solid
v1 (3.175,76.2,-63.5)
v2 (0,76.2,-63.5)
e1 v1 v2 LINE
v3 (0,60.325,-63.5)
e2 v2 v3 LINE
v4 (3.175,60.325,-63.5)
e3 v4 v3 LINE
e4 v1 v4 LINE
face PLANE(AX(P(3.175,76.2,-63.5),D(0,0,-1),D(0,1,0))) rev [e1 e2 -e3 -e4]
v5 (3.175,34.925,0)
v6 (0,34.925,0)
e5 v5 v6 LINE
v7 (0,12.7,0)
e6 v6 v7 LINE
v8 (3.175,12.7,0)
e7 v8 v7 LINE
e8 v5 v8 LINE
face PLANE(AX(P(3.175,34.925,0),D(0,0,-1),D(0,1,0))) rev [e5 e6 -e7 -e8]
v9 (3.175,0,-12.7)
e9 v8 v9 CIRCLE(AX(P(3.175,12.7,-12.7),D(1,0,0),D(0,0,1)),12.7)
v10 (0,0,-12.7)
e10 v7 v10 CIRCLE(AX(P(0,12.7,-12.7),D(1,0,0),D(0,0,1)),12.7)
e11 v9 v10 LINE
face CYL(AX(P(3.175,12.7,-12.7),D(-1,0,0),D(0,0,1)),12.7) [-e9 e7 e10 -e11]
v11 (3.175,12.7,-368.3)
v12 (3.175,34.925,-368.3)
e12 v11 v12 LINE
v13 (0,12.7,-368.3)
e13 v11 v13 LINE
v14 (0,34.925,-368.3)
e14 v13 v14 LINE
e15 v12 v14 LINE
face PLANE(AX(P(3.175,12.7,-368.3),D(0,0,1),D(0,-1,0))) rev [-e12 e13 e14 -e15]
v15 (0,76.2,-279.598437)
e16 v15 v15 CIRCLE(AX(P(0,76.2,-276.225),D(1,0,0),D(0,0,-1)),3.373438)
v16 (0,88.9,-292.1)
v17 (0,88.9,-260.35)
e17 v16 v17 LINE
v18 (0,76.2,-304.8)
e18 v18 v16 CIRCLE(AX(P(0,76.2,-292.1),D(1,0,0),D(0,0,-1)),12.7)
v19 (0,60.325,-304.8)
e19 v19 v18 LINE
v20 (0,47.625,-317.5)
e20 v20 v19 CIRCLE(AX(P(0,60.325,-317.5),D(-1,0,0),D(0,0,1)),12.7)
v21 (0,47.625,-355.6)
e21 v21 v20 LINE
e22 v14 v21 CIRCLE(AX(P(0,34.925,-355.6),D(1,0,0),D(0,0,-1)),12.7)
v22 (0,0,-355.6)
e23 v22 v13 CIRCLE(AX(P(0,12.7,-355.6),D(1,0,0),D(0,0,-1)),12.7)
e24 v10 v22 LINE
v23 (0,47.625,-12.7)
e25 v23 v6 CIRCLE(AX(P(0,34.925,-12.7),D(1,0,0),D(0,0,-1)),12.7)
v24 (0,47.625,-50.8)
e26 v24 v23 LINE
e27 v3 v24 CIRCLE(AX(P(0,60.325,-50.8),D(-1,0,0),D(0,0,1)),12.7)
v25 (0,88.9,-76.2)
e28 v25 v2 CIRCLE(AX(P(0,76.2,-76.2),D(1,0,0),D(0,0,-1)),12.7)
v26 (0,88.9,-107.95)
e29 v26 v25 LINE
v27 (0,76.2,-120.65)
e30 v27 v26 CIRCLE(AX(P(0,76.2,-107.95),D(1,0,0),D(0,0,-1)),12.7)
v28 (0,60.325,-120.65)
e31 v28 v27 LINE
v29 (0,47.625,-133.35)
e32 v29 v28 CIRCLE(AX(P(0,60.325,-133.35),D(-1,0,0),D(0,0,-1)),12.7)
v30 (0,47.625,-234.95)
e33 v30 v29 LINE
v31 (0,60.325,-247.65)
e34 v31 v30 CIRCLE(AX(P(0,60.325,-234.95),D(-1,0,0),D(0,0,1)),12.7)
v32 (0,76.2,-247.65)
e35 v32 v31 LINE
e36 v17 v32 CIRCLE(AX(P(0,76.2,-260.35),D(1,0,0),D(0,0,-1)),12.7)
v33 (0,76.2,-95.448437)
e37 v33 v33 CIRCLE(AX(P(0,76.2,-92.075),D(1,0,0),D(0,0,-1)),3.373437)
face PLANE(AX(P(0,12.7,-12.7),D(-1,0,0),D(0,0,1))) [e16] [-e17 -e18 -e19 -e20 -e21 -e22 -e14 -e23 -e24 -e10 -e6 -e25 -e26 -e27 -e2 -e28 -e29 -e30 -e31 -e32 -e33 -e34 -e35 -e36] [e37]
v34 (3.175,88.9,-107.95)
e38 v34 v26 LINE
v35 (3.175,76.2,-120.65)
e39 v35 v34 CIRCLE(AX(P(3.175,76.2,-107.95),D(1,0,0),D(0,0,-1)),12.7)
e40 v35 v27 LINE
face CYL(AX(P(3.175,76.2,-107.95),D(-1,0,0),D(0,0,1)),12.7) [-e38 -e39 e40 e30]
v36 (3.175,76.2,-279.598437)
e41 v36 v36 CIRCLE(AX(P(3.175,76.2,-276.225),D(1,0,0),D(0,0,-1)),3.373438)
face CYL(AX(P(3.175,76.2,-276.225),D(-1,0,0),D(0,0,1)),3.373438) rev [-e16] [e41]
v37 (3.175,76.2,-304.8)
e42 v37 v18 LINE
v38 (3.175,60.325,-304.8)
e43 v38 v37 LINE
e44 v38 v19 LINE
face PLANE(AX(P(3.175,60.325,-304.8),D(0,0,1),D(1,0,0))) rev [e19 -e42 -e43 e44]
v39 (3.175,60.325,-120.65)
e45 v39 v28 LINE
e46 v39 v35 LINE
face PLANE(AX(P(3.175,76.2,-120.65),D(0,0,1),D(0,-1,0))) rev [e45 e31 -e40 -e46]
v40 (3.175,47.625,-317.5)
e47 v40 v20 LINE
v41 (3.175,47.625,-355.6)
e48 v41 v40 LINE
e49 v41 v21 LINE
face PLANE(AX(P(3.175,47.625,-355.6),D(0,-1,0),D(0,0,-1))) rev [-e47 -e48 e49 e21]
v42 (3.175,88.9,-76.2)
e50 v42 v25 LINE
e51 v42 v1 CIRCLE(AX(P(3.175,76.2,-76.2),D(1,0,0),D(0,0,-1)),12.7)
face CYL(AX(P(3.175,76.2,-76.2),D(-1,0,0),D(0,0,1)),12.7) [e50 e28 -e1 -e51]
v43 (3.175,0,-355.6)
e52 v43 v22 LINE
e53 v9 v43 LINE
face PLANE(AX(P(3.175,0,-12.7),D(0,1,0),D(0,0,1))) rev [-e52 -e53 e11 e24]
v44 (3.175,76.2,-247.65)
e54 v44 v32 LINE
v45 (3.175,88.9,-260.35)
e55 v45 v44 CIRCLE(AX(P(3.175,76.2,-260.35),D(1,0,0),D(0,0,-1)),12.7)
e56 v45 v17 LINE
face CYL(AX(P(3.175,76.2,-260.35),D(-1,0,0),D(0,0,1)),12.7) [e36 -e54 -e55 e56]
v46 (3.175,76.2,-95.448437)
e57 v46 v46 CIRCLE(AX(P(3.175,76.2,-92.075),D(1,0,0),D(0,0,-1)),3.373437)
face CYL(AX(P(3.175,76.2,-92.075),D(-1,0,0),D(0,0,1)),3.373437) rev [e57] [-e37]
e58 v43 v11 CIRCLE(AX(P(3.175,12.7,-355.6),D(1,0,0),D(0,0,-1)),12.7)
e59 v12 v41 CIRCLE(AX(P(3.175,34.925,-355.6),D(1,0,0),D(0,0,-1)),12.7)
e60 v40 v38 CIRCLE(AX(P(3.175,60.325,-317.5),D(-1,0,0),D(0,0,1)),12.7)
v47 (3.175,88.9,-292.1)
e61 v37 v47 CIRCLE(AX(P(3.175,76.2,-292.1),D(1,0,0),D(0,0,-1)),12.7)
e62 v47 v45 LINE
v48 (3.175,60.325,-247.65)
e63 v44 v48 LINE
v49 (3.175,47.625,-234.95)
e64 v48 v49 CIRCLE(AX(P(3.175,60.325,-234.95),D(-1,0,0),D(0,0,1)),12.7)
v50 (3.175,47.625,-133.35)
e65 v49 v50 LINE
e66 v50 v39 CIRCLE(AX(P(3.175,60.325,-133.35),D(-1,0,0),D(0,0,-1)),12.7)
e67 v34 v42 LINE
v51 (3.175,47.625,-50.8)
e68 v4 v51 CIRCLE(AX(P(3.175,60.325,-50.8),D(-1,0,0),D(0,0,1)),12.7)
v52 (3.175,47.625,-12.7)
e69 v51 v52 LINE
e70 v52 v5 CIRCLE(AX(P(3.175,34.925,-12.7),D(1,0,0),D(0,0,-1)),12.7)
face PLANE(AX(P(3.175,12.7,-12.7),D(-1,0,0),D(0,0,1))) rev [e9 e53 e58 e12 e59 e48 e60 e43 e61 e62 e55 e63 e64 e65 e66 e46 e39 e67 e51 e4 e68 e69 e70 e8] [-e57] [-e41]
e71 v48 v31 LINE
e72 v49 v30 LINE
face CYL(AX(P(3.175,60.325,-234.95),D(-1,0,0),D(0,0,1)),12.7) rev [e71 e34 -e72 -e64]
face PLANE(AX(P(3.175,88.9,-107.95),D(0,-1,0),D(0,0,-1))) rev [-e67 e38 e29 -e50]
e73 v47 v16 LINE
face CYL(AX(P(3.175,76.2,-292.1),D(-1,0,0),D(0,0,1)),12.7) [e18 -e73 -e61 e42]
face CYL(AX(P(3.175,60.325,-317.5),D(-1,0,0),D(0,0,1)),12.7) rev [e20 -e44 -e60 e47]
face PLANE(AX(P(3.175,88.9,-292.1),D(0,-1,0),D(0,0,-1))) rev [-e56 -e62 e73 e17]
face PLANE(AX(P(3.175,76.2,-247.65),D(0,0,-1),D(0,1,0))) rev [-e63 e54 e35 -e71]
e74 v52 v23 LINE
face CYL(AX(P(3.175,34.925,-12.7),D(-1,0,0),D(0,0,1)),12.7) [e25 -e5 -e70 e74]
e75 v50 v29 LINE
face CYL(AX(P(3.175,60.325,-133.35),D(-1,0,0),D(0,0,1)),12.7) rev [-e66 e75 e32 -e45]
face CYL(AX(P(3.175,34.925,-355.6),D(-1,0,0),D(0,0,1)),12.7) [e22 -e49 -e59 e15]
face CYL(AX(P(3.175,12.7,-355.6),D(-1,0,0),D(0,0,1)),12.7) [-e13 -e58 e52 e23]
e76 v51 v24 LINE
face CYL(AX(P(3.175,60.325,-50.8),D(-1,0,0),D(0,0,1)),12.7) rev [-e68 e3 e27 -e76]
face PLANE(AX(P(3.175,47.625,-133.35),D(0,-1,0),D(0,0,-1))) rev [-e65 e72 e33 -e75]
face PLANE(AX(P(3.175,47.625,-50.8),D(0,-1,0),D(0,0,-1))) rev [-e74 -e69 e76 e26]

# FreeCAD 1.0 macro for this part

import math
import FreeCAD as App
import Part
import Sketcher
from FreeCAD import Vector
Q = App.Units.Quantity

doc = App.newDocument("Part")
params = doc.addObject("Spreadsheet::Sheet", "Params")
for row, (alias, value) in enumerate([
    ("sketch1_radius", "0.5 in"),
    ("sketch1_height", "4 in"),
    ("sketch1_diameter", "0.265625 in"),
    ("sketch1_height2", "13.5 in"),
    ("sketch1_height3", "1.5 in"),
    ("pad1_length", "0.125 in"),
], start=1):
    params.set(f"A{row}", alias)
    params.set(f"B{row}", "=" + value)
    params.setAlias(f"B{row}", alias)

body = doc.addObject("PartDesign::Body", "Body")

sketch1 = doc.addObject("Sketcher::SketchObject", "Sketch")
body.addObject(sketch1)
sketch1.AttachmentSupport = (doc.YZ_Plane, [""])
sketch1.MapMode = "FlatFace"
sketch1.addGeometry([
    Part.LineSegment(Vector(0, -12.7, 0), Vector(0, -355.6, 0)),
    Part.ArcOfCircle(Part.Circle(Vector(12.7, -355.6, 0), Vector(0, 0, 1), 12.7), math.radians(180), math.radians(270)),
    Part.LineSegment(Vector(12.7, -368.3, 0), Vector(34.9, -368.3, 0)),
    Part.ArcOfCircle(Part.Circle(Vector(34.9, -355.6, 0), Vector(0, 0, 1), 12.7), math.radians(-90), math.radians(0)),
    Part.LineSegment(Vector(47.6, -355.6, 0), Vector(47.6, -317.5, 0)),
    Part.ArcOfCircle(Part.Circle(Vector(60.3, -317.5, 0), Vector(0, 0, 1), 12.7), math.radians(90), math.radians(180)),
    Part.LineSegment(Vector(60.3, -304.8, 0), Vector(76.2, -304.8, 0)),
    Part.ArcOfCircle(Part.Circle(Vector(76.2, -292.1, 0), Vector(0, 0, 1), 12.7), math.radians(-90), math.radians(0)),
    Part.LineSegment(Vector(88.9, -292.1, 0), Vector(88.9, -260.4, 0)),
    Part.ArcOfCircle(Part.Circle(Vector(76.2, -260.4, 0), Vector(0, 0, 1), 12.7), math.radians(0), math.radians(90)),
    Part.LineSegment(Vector(76.2, -247.7, 0), Vector(60.3, -247.7, 0)),
    Part.ArcOfCircle(Part.Circle(Vector(60.3, -234.9, 0), Vector(0, 0, 1), 12.7), math.radians(180), math.radians(270)),
    Part.LineSegment(Vector(47.6, -234.9, 0), Vector(47.6, -133.3, 0)),
    Part.ArcOfCircle(Part.Circle(Vector(60.3, -133.3, 0), Vector(0, 0, 1), 12.7), math.radians(90), math.radians(180)),
    Part.LineSegment(Vector(60.3, -120.7, 0), Vector(76.2, -120.7, 0)),
    Part.ArcOfCircle(Part.Circle(Vector(76.2, -108, 0), Vector(0, 0, 1), 12.7), math.radians(-90), math.radians(0)),
    Part.LineSegment(Vector(88.9, -108, 0), Vector(88.9, -76.2, 0)),
    Part.ArcOfCircle(Part.Circle(Vector(76.2, -76.2, 0), Vector(0, 0, 1), 12.7), math.radians(0), math.radians(90)),
    Part.LineSegment(Vector(76.2, -63.5, 0), Vector(60.3, -63.5, 0)),
    Part.ArcOfCircle(Part.Circle(Vector(60.3, -50.8, 0), Vector(0, 0, 1), 12.7), math.radians(180), math.radians(270)),
    Part.LineSegment(Vector(47.6, -50.8, 0), Vector(47.6, -12.7, 0)),
    Part.ArcOfCircle(Part.Circle(Vector(34.9, -12.7, 0), Vector(0, 0, 1), 12.7), math.radians(0), math.radians(90)),
    Part.LineSegment(Vector(34.9, 0, 0), Vector(12.7, 0, 0)),
    Part.ArcOfCircle(Part.Circle(Vector(12.7, -12.7, 0), Vector(0, 0, 1), 12.7), math.radians(90), math.radians(180)),
    Part.Circle(Vector(76.2, -92.1, 0), Vector(0, 0, 1), 3.4),
    Part.Circle(Vector(76.2, -276.2, 0), Vector(0, 0, 1), 3.4),
], False)
sketch1.addConstraint([
    Sketcher.Constraint("Tangent", 0, 2, 1, 1),
    Sketcher.Constraint("Tangent", 1, 2, 2, 1),
    Sketcher.Constraint("Tangent", 2, 2, 3, 1),
    Sketcher.Constraint("Tangent", 3, 2, 4, 1),
    Sketcher.Constraint("Tangent", 4, 2, 5, 2),
    Sketcher.Constraint("Tangent", 5, 1, 6, 1),
    Sketcher.Constraint("Tangent", 6, 2, 7, 1),
    Sketcher.Constraint("Tangent", 7, 2, 8, 1),
    Sketcher.Constraint("Tangent", 8, 2, 9, 1),
    Sketcher.Constraint("Tangent", 9, 2, 10, 1),
    Sketcher.Constraint("Tangent", 10, 2, 11, 2),
    Sketcher.Constraint("Tangent", 11, 1, 12, 1),
    Sketcher.Constraint("Tangent", 12, 2, 13, 2),
    Sketcher.Constraint("Tangent", 13, 1, 14, 1),
    Sketcher.Constraint("Tangent", 14, 2, 15, 1),
    Sketcher.Constraint("Tangent", 15, 2, 16, 1),
    Sketcher.Constraint("Tangent", 16, 2, 17, 1),
    Sketcher.Constraint("Tangent", 17, 2, 18, 1),
    Sketcher.Constraint("Tangent", 18, 2, 19, 2),
    Sketcher.Constraint("Tangent", 19, 1, 20, 1),
    Sketcher.Constraint("Tangent", 20, 2, 21, 1),
    Sketcher.Constraint("Tangent", 21, 2, 22, 1),
    Sketcher.Constraint("Tangent", 22, 2, 23, 1),
    Sketcher.Constraint("Tangent", 23, 2, 0, 1),
    Sketcher.Constraint("Vertical", 0),
    Sketcher.Constraint("Horizontal", 2),
    Sketcher.Constraint("Vertical", 4),
    Sketcher.Constraint("Horizontal", 6),
    Sketcher.Constraint("Vertical", 8),
    Sketcher.Constraint("Horizontal", 10),
    Sketcher.Constraint("Vertical", 12),
    Sketcher.Constraint("Horizontal", 14),
    Sketcher.Constraint("Vertical", 16),
    Sketcher.Constraint("Horizontal", 18),
    Sketcher.Constraint("Vertical", 20),
    Sketcher.Constraint("Horizontal", 22),
    Sketcher.Constraint("Equal", 1, 3),
    Sketcher.Constraint("Equal", 3, 5),
    Sketcher.Constraint("Equal", 5, 7),
    Sketcher.Constraint("Equal", 7, 9),
    Sketcher.Constraint("Equal", 9, 11),
    Sketcher.Constraint("Equal", 11, 13),
    Sketcher.Constraint("Equal", 13, 15),
    Sketcher.Constraint("Equal", 15, 17),
    Sketcher.Constraint("Equal", 17, 19),
    Sketcher.Constraint("Equal", 19, 21),
    Sketcher.Constraint("Equal", 21, 23),
    Sketcher.Constraint("Equal", 24, 25),
    Sketcher.Constraint("PointOnObject", 0, 2, -2),
    Sketcher.Constraint("PointOnObject", 21, 2, -1),
    Sketcher.Constraint("Vertical", 5, 3, 11, 3),
    Sketcher.Constraint("Vertical", 9, 3, 15, 3),
    Sketcher.Constraint("Vertical", 13, 3, 19, 3),
    Sketcher.Constraint("Vertical", 17, 3, 24, 3),
    Sketcher.Constraint("Vertical", 24, 3, 25, 3),
    Sketcher.Constraint("Equal", 8, 16),
    Sketcher.Constraint("Equal", 4, 20),
    Sketcher.Constraint("Radius", 1, Q("0.5 in")),
    Sketcher.Constraint("DistanceY", 12, 1, 12, 2, Q("4 in")),
    Sketcher.Constraint("Diameter", 24, Q("0.265625 in")),
    Sketcher.Constraint("DistanceY", 0, 2, 0, 1, Q("13.5 in")),
    Sketcher.Constraint("DistanceY", 4, 1, 4, 2, Q("1.5 in")),
    Sketcher.Constraint("DistanceX", -1, 1, 7, 3, Q("3 in")),
    Sketcher.Constraint("DistanceX", 2, 1, 2, 2, Q("0.875 in")),
    Sketcher.Constraint("DistanceY", 24, 3, -1, 1, Q("3.625 in")),
    Sketcher.Constraint("DistanceY", 25, 3, -1, 1, Q("10.875 in")),
])
sketch1.setExpression("Constraints[57]", "Params.sketch1_radius")
sketch1.setExpression("Constraints[58]", "Params.sketch1_height")
sketch1.setExpression("Constraints[59]", "Params.sketch1_diameter")
sketch1.setExpression("Constraints[60]", "Params.sketch1_height2")
sketch1.setExpression("Constraints[61]", "Params.sketch1_height3")
pad1 = doc.addObject("PartDesign::Pad", "Pad")
body.addObject(pad1)
pad1.Profile = sketch1
pad1.setExpression("Length", "Params.pad1_length")

doc.recompute()
